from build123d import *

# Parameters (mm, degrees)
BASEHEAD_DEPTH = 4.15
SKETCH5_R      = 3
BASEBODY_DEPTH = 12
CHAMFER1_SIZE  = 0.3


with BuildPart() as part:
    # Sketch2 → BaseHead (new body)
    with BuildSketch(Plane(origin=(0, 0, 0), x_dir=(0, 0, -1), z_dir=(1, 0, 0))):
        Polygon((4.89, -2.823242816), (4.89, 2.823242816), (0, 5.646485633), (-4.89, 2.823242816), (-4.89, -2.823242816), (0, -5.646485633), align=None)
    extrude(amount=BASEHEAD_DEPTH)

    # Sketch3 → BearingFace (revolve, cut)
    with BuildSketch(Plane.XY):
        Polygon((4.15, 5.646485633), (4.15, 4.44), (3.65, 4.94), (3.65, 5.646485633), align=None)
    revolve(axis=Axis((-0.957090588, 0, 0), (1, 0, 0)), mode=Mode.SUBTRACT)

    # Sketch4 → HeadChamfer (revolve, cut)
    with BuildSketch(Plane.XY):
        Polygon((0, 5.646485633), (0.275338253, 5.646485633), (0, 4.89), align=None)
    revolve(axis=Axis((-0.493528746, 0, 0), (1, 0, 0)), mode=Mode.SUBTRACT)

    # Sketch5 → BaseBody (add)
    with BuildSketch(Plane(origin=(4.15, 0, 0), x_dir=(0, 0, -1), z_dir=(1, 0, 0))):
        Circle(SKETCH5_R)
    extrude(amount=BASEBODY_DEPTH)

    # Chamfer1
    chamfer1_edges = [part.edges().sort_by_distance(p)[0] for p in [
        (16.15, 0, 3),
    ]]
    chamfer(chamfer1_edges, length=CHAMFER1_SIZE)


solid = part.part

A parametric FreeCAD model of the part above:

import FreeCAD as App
import Part
import Sketcher
from FreeCAD import Vector
Q = App.Units.Quantity


def edges_at(feature, points):
    """Names of the edges that pass closest to the given points."""
    edges = feature.Shape.Edges
    near = lambda p: min(range(len(edges)), key=lambda i: edges[i].distToShape(Part.Vertex(*p))[0])
    return sorted({f"Edge{near(p) + 1}" for p in points})

doc = App.newDocument("Part")
body = doc.addObject("PartDesign::Body", "Body")

# Sketch on YZ plane
sketch1 = body.newObject("Sketcher::SketchObject", "Sketch")
sketch1.AttachmentSupport = (doc.getObject("YZ_Plane"), [""])
sketch1.MapMode = "FlatFace"
sketch1.addGeometry(Part.LineSegment(Vector(-3, -5, 0), Vector(3, -5, 0)), False)
sketch1.addGeometry(Part.LineSegment(Vector(3, -5, 0), Vector(6, 0, 0)), False)
sketch1.addGeometry(Part.LineSegment(Vector(6, 0, 0), Vector(3, 5, 0)), False)
sketch1.addGeometry(Part.LineSegment(Vector(3, 5, 0), Vector(-3, 5, 0)), False)
sketch1.addGeometry(Part.LineSegment(Vector(-3, 5, 0), Vector(-6, 0, 0)), False)
sketch1.addGeometry(Part.LineSegment(Vector(-6, 0, 0), Vector(-3, -5, 0)), False)
sketch1.addConstraint(Sketcher.Constraint("Coincident", 0, 2, 1, 1))
sketch1.addConstraint(Sketcher.Constraint("Coincident", 1, 2, 2, 1))
sketch1.addConstraint(Sketcher.Constraint("Coincident", 2, 2, 3, 1))
sketch1.addConstraint(Sketcher.Constraint("Coincident", 3, 2, 4, 1))
sketch1.addConstraint(Sketcher.Constraint("Coincident", 4, 2, 5, 1))
sketch1.addConstraint(Sketcher.Constraint("Coincident", 5, 2, 0, 1))
sketch1.addConstraint(Sketcher.Constraint("Horizontal", 0))
sketch1.addConstraint(Sketcher.Constraint("Horizontal", 3))
sketch1.addConstraint(Sketcher.Constraint("Symmetric", 0, 2, 3, 2, -1, 1))
sketch1.addConstraint(Sketcher.Constraint("Symmetric", 1, 2, 4, 2, -1, 1))
sketch1.addConstraint(Sketcher.Constraint("PointOnObject", 1, 2, -1))
sketch1.addConstraint(Sketcher.Constraint("Parallel", 2, 5))
sketch1.addConstraint(Sketcher.Constraint("Vertical", 0, 2, 2, 2))
sketch1.addConstraint(Sketcher.Constraint("Angle", 1, Q("60 deg")))
sketch1.addConstraint(Sketcher.Constraint("DistanceY", 0, 2, -1, 1, Q("4.89 mm")))
sketch1.addConstraint(Sketcher.Constraint("DistanceX", 0, 1, 0, 2, Q("5.646486 mm")))
pad1 = body.newObject("PartDesign::Pad", "Pad")
pad1.Profile = sketch1
pad1.Length = 4.15

# Sketch on XY plane
sketch2 = body.newObject("Sketcher::SketchObject", "Sketch001")
sketch2.AttachmentSupport = (doc.getObject("XY_Plane"), [""])
sketch2.MapMode = "FlatFace"
sketch2.addGeometry(Part.LineSegment(Vector(4.2, 4.4, 0), Vector(4.2, 5.6, 0)), False)
sketch2.addGeometry(Part.LineSegment(Vector(4.2, 5.6, 0), Vector(3.6, 5.6, 0)), False)
sketch2.addGeometry(Part.LineSegment(Vector(3.6, 5.6, 0), Vector(3.6, 4.9, 0)), False)
sketch2.addGeometry(Part.LineSegment(Vector(3.6, 4.9, 0), Vector(4.2, 4.4, 0)), False)
sketch2.addConstraint(Sketcher.Constraint("Coincident", 0, 2, 1, 1))
sketch2.addConstraint(Sketcher.Constraint("Coincident", 1, 2, 2, 1))
sketch2.addConstraint(Sketcher.Constraint("Coincident", 2, 2, 3, 1))
sketch2.addConstraint(Sketcher.Constraint("Coincident", 3, 2, 0, 1))
sketch2.addConstraint(Sketcher.Constraint("Vertical", 0))
sketch2.addConstraint(Sketcher.Constraint("Horizontal", 1))
sketch2.addConstraint(Sketcher.Constraint("Vertical", 2))
sketch2.addConstraint(Sketcher.Constraint("Angle", 3, Q("-45 deg")))
sketch2.addConstraint(Sketcher.Constraint("DistanceX", 1, 2, 1, 1, Q("0.5 mm")))
sketch2.addConstraint(Sketcher.Constraint("DistanceX", -1, 1, 0, 2, Q("4.15 mm")))
sketch2.addConstraint(Sketcher.Constraint("DistanceY", -1, 1, 2, 2, Q("4.94 mm")))
sketch2.addConstraint(Sketcher.Constraint("DistanceY", 0, 1, 0, 2, Q("1.206486 mm")))
groove = body.newObject("PartDesign::Groove", "Groove")
groove.Profile = sketch2
groove.ReferenceAxis = (sketch2, ["H_Axis"])
groove.Angle = 360

# Sketch on XY plane
sketch3 = body.newObject("Sketcher::SketchObject", "Sketch002")
sketch3.AttachmentSupport = (doc.getObject("XY_Plane"), [""])
sketch3.MapMode = "FlatFace"
sketch3.addGeometry(Part.LineSegment(Vector(0.28, 5.65, 0), Vector(0, 5.65, 0)), False)
sketch3.addGeometry(Part.LineSegment(Vector(0, 5.65, 0), Vector(0, 4.89, 0)), False)
sketch3.addGeometry(Part.LineSegment(Vector(0, 4.89, 0), Vector(0.28, 5.65, 0)), False)
sketch3.addConstraint(Sketcher.Constraint("Coincident", 0, 2, 1, 1))
sketch3.addConstraint(Sketcher.Constraint("Coincident", 1, 2, 2, 1))
sketch3.addConstraint(Sketcher.Constraint("Coincident", 2, 2, 0, 1))
sketch3.addConstraint(Sketcher.Constraint("Horizontal", 0))
sketch3.addConstraint(Sketcher.Constraint("Vertical", 1))
sketch3.addConstraint(Sketcher.Constraint("PointOnObject", 0, 2, -2))
sketch3.addConstraint(Sketcher.Constraint("Angle", 2, Q("70 deg")))
sketch3.addConstraint(Sketcher.Constraint("DistanceY", -1, 1, 1, 2, Q("4.89 mm")))
sketch3.addConstraint(Sketcher.Constraint("DistanceX", 0, 2, 0, 1, Q("0.275338 mm")))
groove2 = body.newObject("PartDesign::Groove", "Groove001")
groove2.Profile = sketch3
groove2.ReferenceAxis = (sketch3, ["H_Axis"])
groove2.Angle = 360

# Sketch on YZ plane
sketch4 = body.newObject("Sketcher::SketchObject", "Sketch003")
sketch4.AttachmentSupport = (doc.getObject("YZ_Plane"), [""])
sketch4.MapMode = "FlatFace"
sketch4.AttachmentOffset = App.Placement(Vector(0, 0, 4.15), App.Rotation())
sketch4.addGeometry(Part.Circle(Vector(0, 0, 0), Vector(0, 0, 1), 3), False)
sketch4.addConstraint(Sketcher.Constraint("Coincident", 0, 3, -1, 1))
sketch4.addConstraint(Sketcher.Constraint("Diameter", 0, Q("6 mm")))
pad2 = body.newObject("PartDesign::Pad", "Pad001")
pad2.Profile = sketch4
pad2.Length = 12
doc.recompute()

chamfer = body.newObject("PartDesign::Chamfer", "Chamfer")
chamfer.Base = (pad2, edges_at(pad2, [(16.15, 0, 3)]))
chamfer.Size = 0.3

doc.recompute()
